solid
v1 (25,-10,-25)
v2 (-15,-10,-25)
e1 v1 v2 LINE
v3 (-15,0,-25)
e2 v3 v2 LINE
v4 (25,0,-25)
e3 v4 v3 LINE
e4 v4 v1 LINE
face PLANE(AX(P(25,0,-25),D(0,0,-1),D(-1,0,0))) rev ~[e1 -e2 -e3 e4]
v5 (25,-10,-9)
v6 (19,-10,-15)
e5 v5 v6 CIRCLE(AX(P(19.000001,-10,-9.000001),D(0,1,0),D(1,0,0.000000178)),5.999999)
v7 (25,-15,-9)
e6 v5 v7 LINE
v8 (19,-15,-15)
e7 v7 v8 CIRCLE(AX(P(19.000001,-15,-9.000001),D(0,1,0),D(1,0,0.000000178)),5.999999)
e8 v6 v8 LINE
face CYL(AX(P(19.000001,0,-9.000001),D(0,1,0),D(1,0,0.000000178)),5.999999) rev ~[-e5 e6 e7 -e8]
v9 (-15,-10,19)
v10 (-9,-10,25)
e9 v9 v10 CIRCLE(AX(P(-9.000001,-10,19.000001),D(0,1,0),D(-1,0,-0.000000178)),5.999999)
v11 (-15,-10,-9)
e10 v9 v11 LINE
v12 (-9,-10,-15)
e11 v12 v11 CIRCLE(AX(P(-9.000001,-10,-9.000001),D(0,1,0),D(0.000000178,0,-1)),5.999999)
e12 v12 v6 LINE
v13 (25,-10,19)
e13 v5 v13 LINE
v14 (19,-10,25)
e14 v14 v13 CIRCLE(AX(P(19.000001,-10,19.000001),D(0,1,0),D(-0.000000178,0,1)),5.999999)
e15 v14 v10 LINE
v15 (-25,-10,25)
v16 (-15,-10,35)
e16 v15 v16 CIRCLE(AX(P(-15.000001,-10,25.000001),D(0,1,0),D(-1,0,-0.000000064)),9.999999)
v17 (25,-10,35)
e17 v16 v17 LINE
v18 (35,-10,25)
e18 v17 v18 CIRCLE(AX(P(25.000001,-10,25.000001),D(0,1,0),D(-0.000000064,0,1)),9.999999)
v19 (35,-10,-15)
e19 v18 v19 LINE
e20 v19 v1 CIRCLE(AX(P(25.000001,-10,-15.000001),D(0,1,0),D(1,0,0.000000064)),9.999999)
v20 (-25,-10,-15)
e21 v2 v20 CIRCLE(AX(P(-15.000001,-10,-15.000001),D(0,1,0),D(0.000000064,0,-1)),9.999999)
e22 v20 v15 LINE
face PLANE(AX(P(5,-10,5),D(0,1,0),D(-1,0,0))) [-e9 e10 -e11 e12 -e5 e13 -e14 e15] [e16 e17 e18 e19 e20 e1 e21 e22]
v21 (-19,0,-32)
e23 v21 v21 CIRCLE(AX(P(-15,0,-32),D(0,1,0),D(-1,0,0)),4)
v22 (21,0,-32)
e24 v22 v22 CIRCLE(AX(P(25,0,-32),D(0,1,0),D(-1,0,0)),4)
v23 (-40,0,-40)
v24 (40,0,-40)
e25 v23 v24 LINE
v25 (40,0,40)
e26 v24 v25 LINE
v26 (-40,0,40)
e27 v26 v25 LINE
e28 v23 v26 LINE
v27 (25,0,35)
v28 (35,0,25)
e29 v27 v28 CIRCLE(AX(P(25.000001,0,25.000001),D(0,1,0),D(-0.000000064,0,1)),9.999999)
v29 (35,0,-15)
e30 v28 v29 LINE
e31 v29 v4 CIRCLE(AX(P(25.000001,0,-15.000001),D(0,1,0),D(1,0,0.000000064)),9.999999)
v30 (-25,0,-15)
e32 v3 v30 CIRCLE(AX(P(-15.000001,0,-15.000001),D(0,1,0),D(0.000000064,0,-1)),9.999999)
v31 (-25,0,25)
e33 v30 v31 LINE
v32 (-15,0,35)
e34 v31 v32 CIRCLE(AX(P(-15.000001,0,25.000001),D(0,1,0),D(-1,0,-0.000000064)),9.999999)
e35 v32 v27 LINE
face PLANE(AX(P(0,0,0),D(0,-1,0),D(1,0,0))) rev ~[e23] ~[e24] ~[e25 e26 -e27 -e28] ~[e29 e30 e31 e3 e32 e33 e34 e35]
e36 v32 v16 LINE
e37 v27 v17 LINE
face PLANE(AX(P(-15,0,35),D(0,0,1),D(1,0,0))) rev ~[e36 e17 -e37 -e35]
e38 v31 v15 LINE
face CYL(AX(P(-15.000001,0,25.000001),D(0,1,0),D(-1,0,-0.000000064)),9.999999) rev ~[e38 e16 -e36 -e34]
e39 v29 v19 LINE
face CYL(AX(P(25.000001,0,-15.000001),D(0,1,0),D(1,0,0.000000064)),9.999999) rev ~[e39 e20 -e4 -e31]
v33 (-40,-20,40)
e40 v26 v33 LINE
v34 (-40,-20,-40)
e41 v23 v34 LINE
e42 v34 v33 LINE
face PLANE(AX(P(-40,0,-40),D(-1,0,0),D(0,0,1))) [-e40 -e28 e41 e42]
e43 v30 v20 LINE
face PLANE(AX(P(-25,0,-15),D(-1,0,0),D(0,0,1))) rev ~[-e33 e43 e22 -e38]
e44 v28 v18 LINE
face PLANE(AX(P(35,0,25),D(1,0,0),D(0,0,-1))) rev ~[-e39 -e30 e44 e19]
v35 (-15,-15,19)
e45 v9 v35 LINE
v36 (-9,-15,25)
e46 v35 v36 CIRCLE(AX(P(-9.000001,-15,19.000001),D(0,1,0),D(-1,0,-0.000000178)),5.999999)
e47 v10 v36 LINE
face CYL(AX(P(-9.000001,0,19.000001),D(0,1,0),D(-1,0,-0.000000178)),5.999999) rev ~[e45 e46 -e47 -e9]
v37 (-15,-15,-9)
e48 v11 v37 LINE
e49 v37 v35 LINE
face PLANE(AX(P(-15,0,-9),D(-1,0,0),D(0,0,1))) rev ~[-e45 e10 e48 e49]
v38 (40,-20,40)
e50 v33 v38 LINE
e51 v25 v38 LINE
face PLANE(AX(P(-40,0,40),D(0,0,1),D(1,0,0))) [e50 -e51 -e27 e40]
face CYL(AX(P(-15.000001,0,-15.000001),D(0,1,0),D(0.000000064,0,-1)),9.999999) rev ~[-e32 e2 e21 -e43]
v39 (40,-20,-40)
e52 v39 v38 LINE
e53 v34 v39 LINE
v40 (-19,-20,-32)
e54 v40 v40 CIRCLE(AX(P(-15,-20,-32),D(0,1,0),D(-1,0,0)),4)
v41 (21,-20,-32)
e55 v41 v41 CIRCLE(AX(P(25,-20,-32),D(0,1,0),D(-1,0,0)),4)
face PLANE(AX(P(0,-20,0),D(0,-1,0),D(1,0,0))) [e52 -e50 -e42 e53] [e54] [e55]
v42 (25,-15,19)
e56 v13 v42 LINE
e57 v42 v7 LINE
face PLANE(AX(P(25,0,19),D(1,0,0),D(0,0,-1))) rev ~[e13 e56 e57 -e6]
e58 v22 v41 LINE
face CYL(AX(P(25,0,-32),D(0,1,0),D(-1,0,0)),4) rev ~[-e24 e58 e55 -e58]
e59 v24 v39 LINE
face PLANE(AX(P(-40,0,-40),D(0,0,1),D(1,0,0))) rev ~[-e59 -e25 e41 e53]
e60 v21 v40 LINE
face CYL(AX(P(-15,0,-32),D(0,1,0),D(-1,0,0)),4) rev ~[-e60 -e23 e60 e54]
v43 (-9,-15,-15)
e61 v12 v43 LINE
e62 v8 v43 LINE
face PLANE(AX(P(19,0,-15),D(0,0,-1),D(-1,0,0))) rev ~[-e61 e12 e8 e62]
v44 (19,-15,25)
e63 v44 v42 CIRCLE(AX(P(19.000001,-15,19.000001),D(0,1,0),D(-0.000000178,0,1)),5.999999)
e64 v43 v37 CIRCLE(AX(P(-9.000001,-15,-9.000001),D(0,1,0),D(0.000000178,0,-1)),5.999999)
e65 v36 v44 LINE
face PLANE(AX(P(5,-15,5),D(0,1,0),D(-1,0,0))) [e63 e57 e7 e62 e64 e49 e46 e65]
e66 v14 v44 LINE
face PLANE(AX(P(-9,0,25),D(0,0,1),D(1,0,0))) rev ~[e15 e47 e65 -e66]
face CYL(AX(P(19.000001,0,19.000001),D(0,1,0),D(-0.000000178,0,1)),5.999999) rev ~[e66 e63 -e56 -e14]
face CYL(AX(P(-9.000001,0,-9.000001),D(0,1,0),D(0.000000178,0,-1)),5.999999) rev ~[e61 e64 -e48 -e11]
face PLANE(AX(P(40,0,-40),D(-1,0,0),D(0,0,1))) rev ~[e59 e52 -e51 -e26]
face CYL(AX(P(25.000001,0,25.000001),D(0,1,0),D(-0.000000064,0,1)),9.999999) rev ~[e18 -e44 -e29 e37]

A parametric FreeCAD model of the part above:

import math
import FreeCAD as App
import Part
import Sketcher
from FreeCAD import Vector

doc = App.newDocument("Part")
body = doc.addObject("PartDesign::Body", "Body")

# Sketch on XZ plane
sketch1 = doc.addObject("Sketcher::SketchObject", "Sketch")
body.addObject(sketch1)
sketch1.AttachmentSupport = (doc.XZ_Plane, [""])
sketch1.MapMode = "FlatFace"
sketch1.addGeometry([
    Part.LineSegment(Vector(-40, 40, 0), Vector(-40, -40, 0)),
    Part.LineSegment(Vector(-40, -40, 0), Vector(40, -40, 0)),
    Part.LineSegment(Vector(40, -40, 0), Vector(40, 40, 0)),
    Part.LineSegment(Vector(40, 40, 0), Vector(-40, 40, 0)),
], False)
sketch1.addConstraint([
    Sketcher.Constraint("Coincident", 0, 2, 1, 1),
    Sketcher.Constraint("Coincident", 1, 2, 2, 1),
    Sketcher.Constraint("Coincident", 2, 2, 3, 1),
    Sketcher.Constraint("Coincident", 3, 2, 0, 1),
    Sketcher.Constraint("Vertical", 0),
    Sketcher.Constraint("Horizontal", 1),
    Sketcher.Constraint("Vertical", 2),
    Sketcher.Constraint("Horizontal", 3),
    Sketcher.Constraint("Symmetric", 0, 2, 2, 2, -1, 1),
    Sketcher.Constraint("Equal", 3, 0),
    Sketcher.Constraint("DistanceX", 1, 1, 1, 2, 80.0),
])
pad1 = doc.addObject("PartDesign::Pad", "Pad")
body.addObject(pad1)
pad1.Profile = sketch1
pad1.Length = 20

# Sketch on XZ plane
sketch2 = doc.addObject("Sketcher::SketchObject", "Sketch001")
body.addObject(sketch2)
sketch2.AttachmentSupport = (doc.XZ_Plane, [""])
sketch2.MapMode = "FlatFace"
sketch2.addGeometry([
    Part.ArcOfCircle(Part.Circle(Vector(19, 19, 0), Vector(0, 0, 1), 6), math.radians(0), math.radians(90)),  # 0
    Part.LineSegment(Vector(25, 19, 0), Vector(25, -9, 0)),  # 1
    Part.ArcOfCircle(Part.Circle(Vector(19, -9, 0), Vector(0, 0, 1), 6), math.radians(-90), math.radians(0)),  # 2
    Part.LineSegment(Vector(19, -15, 0), Vector(-9, -15, 0)),  # 3
    Part.ArcOfCircle(Part.Circle(Vector(-9, -9, 0), Vector(0, 0, 1), 6), math.radians(180), math.radians(270)),  # 4
    Part.LineSegment(Vector(-15, -9, 0), Vector(-15, 19, 0)),  # 5
    Part.ArcOfCircle(Part.Circle(Vector(-9, 19, 0), Vector(0, 0, 1), 6), math.radians(90), math.radians(180)),  # 6
    Part.LineSegment(Vector(-9, 25, 0), Vector(19, 25, 0)),  # 7
], False)
sketch2.addConstraint([
    Sketcher.Constraint("Tangent", 0, 1, 1, 1),
    Sketcher.Constraint("Tangent", 1, 2, 2, 2),
    Sketcher.Constraint("Tangent", 2, 1, 3, 1),
    Sketcher.Constraint("Tangent", 3, 2, 4, 2),
    Sketcher.Constraint("Tangent", 4, 1, 5, 1),
    Sketcher.Constraint("Tangent", 5, 2, 6, 2),
    Sketcher.Constraint("Tangent", 6, 1, 7, 1),
    Sketcher.Constraint("Tangent", 7, 2, 0, 2),
    Sketcher.Constraint("Vertical", 1),
    Sketcher.Constraint("Horizontal", 3),
    Sketcher.Constraint("Vertical", 5),
    Sketcher.Constraint("Horizontal", 7),
    Sketcher.Constraint("Equal", 0, 2),
    Sketcher.Constraint("Equal", 2, 4),
    Sketcher.Constraint("Equal", 4, 6),
    Sketcher.Constraint("Equal", 7, 1),
    Sketcher.Constraint("Radius", 0, 5.999999),
    Sketcher.Constraint("DistanceX", 3, 2, 3, 1, 28.0),
    Sketcher.Constraint("DistanceX", -1, 1, 0, 3, 19.000001),
    Sketcher.Constraint("DistanceY", -1, 1, 0, 3, 19.000001),
])
pocket1 = doc.addObject("PartDesign::Pocket", "Pocket")
body.addObject(pocket1)
pocket1.Profile = sketch2
pocket1.Length = 15
pocket1.Reversed = True

# Sketch on XZ plane
sketch3 = doc.addObject("Sketcher::SketchObject", "Sketch002")
body.addObject(sketch3)
sketch3.AttachmentSupport = (doc.XZ_Plane, [""])
sketch3.MapMode = "FlatFace"
sketch3.addGeometry([
    Part.LineSegment(Vector(35, 25, 0), Vector(35, -15, 0)),  # 0
    Part.ArcOfCircle(Part.Circle(Vector(25, -15, 0), Vector(0, 0, 1), 10), math.radians(-90), math.radians(0)),  # 1
    Part.LineSegment(Vector(25, -25, 0), Vector(-15, -25, 0)),  # 2
    Part.ArcOfCircle(Part.Circle(Vector(-15, -15, 0), Vector(0, 0, 1), 10), math.radians(180), math.radians(270)),  # 3
    Part.LineSegment(Vector(-25, -15, 0), Vector(-25, 25, 0)),  # 4
    Part.ArcOfCircle(Part.Circle(Vector(-15, 25, 0), Vector(0, 0, 1), 10), math.radians(90), math.radians(180)),  # 5
    Part.LineSegment(Vector(-15, 35, 0), Vector(25, 35, 0)),  # 6
    Part.ArcOfCircle(Part.Circle(Vector(25, 25, 0), Vector(0, 0, 1), 10), math.radians(0), math.radians(90)),  # 7
], False)
sketch3.addConstraint([
    Sketcher.Constraint("Tangent", 0, 2, 1, 2),
    Sketcher.Constraint("Tangent", 1, 1, 2, 1),
    Sketcher.Constraint("Tangent", 2, 2, 3, 2),
    Sketcher.Constraint("Tangent", 3, 1, 4, 1),
    Sketcher.Constraint("Tangent", 4, 2, 5, 2),
    Sketcher.Constraint("Tangent", 5, 1, 6, 1),
    Sketcher.Constraint("Tangent", 6, 2, 7, 2),
    Sketcher.Constraint("Tangent", 7, 1, 0, 1),
    Sketcher.Constraint("Vertical", 0),
    Sketcher.Constraint("Horizontal", 2),
    Sketcher.Constraint("Vertical", 4),
    Sketcher.Constraint("Horizontal", 6),
    Sketcher.Constraint("Equal", 1, 3),
    Sketcher.Constraint("Equal", 3, 5),
    Sketcher.Constraint("Equal", 5, 7),
    Sketcher.Constraint("Symmetric", 1, 1, 4, 2, -1, 1),
    Sketcher.Constraint("Equal", 6, 0),
    Sketcher.Constraint("Radius", 1, 9.999999),
    Sketcher.Constraint("DistanceX", 2, 2, 2, 1, 40.0),
])
pocket2 = doc.addObject("PartDesign::Pocket", "Pocket001")
body.addObject(pocket2)
pocket2.Profile = sketch3
pocket2.Length = 10
pocket2.Reversed = True

# Sketch on XZ plane
sketch4 = doc.addObject("Sketcher::SketchObject", "Sketch003")
body.addObject(sketch4)
sketch4.AttachmentSupport = (doc.XZ_Plane, [""])
sketch4.MapMode = "FlatFace"
sketch4.addGeometry([
    Part.Circle(Vector(25, -32, 0), Vector(0, 0, 1), 4),
    Part.Circle(Vector(-15, -32, 0), Vector(0, 0, 1), 4),
], False)
sketch4.addConstraint([
    Sketcher.Constraint("Equal", 0, 1),
    Sketcher.Constraint("Horizontal", 0, 3, 1, 3),
    Sketcher.Constraint("Diameter", 0, 8.0),
    Sketcher.Constraint("DistanceX", -1, 1, 0, 3, 25.0),
    Sketcher.Constraint("DistanceY", 0, 3, -1, 1, 32.0),
    Sketcher.Constraint("DistanceX", 1, 3, -1, 1, 15.0),
])
pocket3 = doc.addObject("PartDesign::Pocket", "Pocket002")
body.addObject(pocket3)
pocket3.Profile = sketch4
pocket3.Length = 25
pocket3.Reversed = True

doc.recompute()
